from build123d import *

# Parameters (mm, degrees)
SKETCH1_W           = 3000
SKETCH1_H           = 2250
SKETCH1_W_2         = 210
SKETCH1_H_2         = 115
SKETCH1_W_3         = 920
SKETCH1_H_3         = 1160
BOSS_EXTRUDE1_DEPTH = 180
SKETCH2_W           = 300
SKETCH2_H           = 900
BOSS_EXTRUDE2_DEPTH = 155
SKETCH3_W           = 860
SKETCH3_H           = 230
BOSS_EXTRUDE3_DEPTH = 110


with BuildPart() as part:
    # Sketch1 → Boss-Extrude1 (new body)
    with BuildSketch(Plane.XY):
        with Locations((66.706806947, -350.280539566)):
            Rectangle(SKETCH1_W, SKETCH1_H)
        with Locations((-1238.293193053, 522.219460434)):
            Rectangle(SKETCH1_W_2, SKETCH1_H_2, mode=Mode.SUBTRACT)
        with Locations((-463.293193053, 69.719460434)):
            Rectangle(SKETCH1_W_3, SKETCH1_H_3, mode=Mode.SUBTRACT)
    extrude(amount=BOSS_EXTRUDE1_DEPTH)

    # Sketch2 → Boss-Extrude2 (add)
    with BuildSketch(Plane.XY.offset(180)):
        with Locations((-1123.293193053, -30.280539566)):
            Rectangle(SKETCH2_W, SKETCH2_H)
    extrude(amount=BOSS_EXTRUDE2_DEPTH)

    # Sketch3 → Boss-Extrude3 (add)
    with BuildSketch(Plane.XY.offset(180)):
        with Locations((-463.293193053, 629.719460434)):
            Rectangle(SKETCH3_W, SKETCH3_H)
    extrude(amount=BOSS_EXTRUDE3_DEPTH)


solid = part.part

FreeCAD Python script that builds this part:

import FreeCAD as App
import Part
import Sketcher

V = App.Vector
Q = App.Units.Quantity


def add_polygon(sketch, points):
    """Adds a closed chain of lines whose ends are joined by coincident constraints."""
    first, n = sketch.GeometryCount, len(points)
    for a, b in zip(points, points[1:] + points[:1]):
        sketch.addGeometry(Part.LineSegment(App.Vector(*a, 0), App.Vector(*b, 0)), False)
    for i in range(n):
        sketch.addConstraint(Sketcher.Constraint("Coincident", first + i, 2, first + (i + 1) % n, 1))

doc = App.newDocument("Part")
body = doc.addObject("PartDesign::Body", "Body")

# Sketch on XY plane
sketch1 = doc.addObject("Sketcher::SketchObject", "Sketch")
body.addObject(sketch1)
sketch1.AttachmentSupport = (doc.XY_Plane, [""])
sketch1.MapMode = "FlatFace"
add_polygon(sketch1, [(-1433, 775), (-1433, -1475), (1567, -1475), (1567, 775)])  # lines 0-3
add_polygon(sketch1, [(-1133, 465), (-1343, 465), (-1343, 580), (-1133, 580)])  # lines 4-7
add_polygon(sketch1, [(-3, -510), (-923, -510), (-923, 650), (-3, 650)])  # lines 8-11
sketch1.addConstraint(Sketcher.Constraint("Vertical", 0))
sketch1.addConstraint(Sketcher.Constraint("Horizontal", 1))
sketch1.addConstraint(Sketcher.Constraint("Vertical", 2))
sketch1.addConstraint(Sketcher.Constraint("Horizontal", 3))
sketch1.addConstraint(Sketcher.Constraint("Horizontal", 4))
sketch1.addConstraint(Sketcher.Constraint("Vertical", 5))
sketch1.addConstraint(Sketcher.Constraint("Horizontal", 6))
sketch1.addConstraint(Sketcher.Constraint("Vertical", 7))
sketch1.addConstraint(Sketcher.Constraint("Horizontal", 8))
sketch1.addConstraint(Sketcher.Constraint("Vertical", 9))
sketch1.addConstraint(Sketcher.Constraint("Horizontal", 10))
sketch1.addConstraint(Sketcher.Constraint("Vertical", 11))
sketch1.addConstraint(Sketcher.Constraint("DistanceX", 1, 1, 1, 2, Q("3000 mm")))
sketch1.addConstraint(Sketcher.Constraint("DistanceX", 4, 2, 4, 1, Q("210 mm")))
sketch1.addConstraint(Sketcher.Constraint("DistanceX", 8, 2, 8, 1, Q("920 mm")))
sketch1.addConstraint(Sketcher.Constraint("DistanceY", 0, 2, 0, 1, Q("2250 mm")))
sketch1.addConstraint(Sketcher.Constraint("DistanceY", 5, 1, 5, 2, Q("115 mm")))
sketch1.addConstraint(Sketcher.Constraint("DistanceY", 9, 1, 9, 2, Q("1160 mm")))
sketch1.addConstraint(Sketcher.Constraint("DistanceX", 3, 2, 4, 2, Q("90 mm")))
sketch1.addConstraint(Sketcher.Constraint("DistanceY", 4, 2, 3, 2, Q("310 mm")))
sketch1.addConstraint(Sketcher.Constraint("DistanceX", 7, 2, 8, 2, Q("210 mm")))
sketch1.addConstraint(Sketcher.Constraint("DistanceY", 8, 2, 7, 2, Q("975 mm")))
sketch1.addConstraint(Sketcher.Constraint("DistanceY", 0, 2, -1, 1, Q("1475.28054 mm")))
sketch1.addConstraint(Sketcher.Constraint("DistanceX", 0, 2, -1, 1, Q("1433.293193 mm")))
pad1 = doc.addObject("PartDesign::Pad", "Pad")
body.addObject(pad1)
pad1.Profile = sketch1
pad1.Length = 180

# Sketch on XY plane
sketch2 = doc.addObject("Sketcher::SketchObject", "Sketch001")
body.addObject(sketch2)
sketch2.AttachmentSupport = (doc.XY_Plane, [""])
sketch2.MapMode = "FlatFace"
sketch2.AttachmentOffset = App.Placement(V(0, 0, 180), App.Rotation())
add_polygon(sketch2, [(-1273, 420), (-1273, -480), (-973, -480), (-973, 420)])  # lines 0-3
sketch2.addConstraint(Sketcher.Constraint("Vertical", 0))
sketch2.addConstraint(Sketcher.Constraint("Horizontal", 1))
sketch2.addConstraint(Sketcher.Constraint("Vertical", 2))
sketch2.addConstraint(Sketcher.Constraint("Horizontal", 3))
sketch2.addConstraint(Sketcher.Constraint("DistanceX", 1, 1, 1, 2, Q("300 mm")))
sketch2.addConstraint(Sketcher.Constraint("DistanceY", 0, 2, 0, 1, Q("900 mm")))
sketch2.addConstraint(Sketcher.Constraint("DistanceY", 0, 2, -1, 1, Q("480.28054 mm")))
sketch2.addConstraint(Sketcher.Constraint("DistanceX", 0, 2, -1, 1, Q("1273.293193 mm")))
pad2 = doc.addObject("PartDesign::Pad", "Pad001")
body.addObject(pad2)
pad2.Profile = sketch2
pad2.Length = 155

# Sketch on XY plane
sketch3 = doc.addObject("Sketcher::SketchObject", "Sketch002")
body.addObject(sketch3)
sketch3.AttachmentSupport = (doc.XY_Plane, [""])
sketch3.MapMode = "FlatFace"
sketch3.AttachmentOffset = App.Placement(V(0, 0, 180), App.Rotation())
add_polygon(sketch3, [(-893, 745), (-893, 515), (-33, 515), (-33, 745)])  # lines 0-3
sketch3.addConstraint(Sketcher.Constraint("Vertical", 0))
sketch3.addConstraint(Sketcher.Constraint("Horizontal", 1))
sketch3.addConstraint(Sketcher.Constraint("Vertical", 2))
sketch3.addConstraint(Sketcher.Constraint("Horizontal", 3))
sketch3.addConstraint(Sketcher.Constraint("DistanceX", 1, 1, 1, 2, Q("860 mm")))
sketch3.addConstraint(Sketcher.Constraint("DistanceY", 0, 2, 0, 1, Q("230 mm")))
sketch3.addConstraint(Sketcher.Constraint("DistanceY", -1, 1, 0, 2, Q("514.71946 mm")))
sketch3.addConstraint(Sketcher.Constraint("DistanceX", 0, 2, -1, 1, Q("893.293193 mm")))
pad3 = doc.addObject("PartDesign::Pad", "Pad002")
body.addObject(pad3)
pad3.Profile = sketch3
pad3.Length = 110

doc.recompute()
